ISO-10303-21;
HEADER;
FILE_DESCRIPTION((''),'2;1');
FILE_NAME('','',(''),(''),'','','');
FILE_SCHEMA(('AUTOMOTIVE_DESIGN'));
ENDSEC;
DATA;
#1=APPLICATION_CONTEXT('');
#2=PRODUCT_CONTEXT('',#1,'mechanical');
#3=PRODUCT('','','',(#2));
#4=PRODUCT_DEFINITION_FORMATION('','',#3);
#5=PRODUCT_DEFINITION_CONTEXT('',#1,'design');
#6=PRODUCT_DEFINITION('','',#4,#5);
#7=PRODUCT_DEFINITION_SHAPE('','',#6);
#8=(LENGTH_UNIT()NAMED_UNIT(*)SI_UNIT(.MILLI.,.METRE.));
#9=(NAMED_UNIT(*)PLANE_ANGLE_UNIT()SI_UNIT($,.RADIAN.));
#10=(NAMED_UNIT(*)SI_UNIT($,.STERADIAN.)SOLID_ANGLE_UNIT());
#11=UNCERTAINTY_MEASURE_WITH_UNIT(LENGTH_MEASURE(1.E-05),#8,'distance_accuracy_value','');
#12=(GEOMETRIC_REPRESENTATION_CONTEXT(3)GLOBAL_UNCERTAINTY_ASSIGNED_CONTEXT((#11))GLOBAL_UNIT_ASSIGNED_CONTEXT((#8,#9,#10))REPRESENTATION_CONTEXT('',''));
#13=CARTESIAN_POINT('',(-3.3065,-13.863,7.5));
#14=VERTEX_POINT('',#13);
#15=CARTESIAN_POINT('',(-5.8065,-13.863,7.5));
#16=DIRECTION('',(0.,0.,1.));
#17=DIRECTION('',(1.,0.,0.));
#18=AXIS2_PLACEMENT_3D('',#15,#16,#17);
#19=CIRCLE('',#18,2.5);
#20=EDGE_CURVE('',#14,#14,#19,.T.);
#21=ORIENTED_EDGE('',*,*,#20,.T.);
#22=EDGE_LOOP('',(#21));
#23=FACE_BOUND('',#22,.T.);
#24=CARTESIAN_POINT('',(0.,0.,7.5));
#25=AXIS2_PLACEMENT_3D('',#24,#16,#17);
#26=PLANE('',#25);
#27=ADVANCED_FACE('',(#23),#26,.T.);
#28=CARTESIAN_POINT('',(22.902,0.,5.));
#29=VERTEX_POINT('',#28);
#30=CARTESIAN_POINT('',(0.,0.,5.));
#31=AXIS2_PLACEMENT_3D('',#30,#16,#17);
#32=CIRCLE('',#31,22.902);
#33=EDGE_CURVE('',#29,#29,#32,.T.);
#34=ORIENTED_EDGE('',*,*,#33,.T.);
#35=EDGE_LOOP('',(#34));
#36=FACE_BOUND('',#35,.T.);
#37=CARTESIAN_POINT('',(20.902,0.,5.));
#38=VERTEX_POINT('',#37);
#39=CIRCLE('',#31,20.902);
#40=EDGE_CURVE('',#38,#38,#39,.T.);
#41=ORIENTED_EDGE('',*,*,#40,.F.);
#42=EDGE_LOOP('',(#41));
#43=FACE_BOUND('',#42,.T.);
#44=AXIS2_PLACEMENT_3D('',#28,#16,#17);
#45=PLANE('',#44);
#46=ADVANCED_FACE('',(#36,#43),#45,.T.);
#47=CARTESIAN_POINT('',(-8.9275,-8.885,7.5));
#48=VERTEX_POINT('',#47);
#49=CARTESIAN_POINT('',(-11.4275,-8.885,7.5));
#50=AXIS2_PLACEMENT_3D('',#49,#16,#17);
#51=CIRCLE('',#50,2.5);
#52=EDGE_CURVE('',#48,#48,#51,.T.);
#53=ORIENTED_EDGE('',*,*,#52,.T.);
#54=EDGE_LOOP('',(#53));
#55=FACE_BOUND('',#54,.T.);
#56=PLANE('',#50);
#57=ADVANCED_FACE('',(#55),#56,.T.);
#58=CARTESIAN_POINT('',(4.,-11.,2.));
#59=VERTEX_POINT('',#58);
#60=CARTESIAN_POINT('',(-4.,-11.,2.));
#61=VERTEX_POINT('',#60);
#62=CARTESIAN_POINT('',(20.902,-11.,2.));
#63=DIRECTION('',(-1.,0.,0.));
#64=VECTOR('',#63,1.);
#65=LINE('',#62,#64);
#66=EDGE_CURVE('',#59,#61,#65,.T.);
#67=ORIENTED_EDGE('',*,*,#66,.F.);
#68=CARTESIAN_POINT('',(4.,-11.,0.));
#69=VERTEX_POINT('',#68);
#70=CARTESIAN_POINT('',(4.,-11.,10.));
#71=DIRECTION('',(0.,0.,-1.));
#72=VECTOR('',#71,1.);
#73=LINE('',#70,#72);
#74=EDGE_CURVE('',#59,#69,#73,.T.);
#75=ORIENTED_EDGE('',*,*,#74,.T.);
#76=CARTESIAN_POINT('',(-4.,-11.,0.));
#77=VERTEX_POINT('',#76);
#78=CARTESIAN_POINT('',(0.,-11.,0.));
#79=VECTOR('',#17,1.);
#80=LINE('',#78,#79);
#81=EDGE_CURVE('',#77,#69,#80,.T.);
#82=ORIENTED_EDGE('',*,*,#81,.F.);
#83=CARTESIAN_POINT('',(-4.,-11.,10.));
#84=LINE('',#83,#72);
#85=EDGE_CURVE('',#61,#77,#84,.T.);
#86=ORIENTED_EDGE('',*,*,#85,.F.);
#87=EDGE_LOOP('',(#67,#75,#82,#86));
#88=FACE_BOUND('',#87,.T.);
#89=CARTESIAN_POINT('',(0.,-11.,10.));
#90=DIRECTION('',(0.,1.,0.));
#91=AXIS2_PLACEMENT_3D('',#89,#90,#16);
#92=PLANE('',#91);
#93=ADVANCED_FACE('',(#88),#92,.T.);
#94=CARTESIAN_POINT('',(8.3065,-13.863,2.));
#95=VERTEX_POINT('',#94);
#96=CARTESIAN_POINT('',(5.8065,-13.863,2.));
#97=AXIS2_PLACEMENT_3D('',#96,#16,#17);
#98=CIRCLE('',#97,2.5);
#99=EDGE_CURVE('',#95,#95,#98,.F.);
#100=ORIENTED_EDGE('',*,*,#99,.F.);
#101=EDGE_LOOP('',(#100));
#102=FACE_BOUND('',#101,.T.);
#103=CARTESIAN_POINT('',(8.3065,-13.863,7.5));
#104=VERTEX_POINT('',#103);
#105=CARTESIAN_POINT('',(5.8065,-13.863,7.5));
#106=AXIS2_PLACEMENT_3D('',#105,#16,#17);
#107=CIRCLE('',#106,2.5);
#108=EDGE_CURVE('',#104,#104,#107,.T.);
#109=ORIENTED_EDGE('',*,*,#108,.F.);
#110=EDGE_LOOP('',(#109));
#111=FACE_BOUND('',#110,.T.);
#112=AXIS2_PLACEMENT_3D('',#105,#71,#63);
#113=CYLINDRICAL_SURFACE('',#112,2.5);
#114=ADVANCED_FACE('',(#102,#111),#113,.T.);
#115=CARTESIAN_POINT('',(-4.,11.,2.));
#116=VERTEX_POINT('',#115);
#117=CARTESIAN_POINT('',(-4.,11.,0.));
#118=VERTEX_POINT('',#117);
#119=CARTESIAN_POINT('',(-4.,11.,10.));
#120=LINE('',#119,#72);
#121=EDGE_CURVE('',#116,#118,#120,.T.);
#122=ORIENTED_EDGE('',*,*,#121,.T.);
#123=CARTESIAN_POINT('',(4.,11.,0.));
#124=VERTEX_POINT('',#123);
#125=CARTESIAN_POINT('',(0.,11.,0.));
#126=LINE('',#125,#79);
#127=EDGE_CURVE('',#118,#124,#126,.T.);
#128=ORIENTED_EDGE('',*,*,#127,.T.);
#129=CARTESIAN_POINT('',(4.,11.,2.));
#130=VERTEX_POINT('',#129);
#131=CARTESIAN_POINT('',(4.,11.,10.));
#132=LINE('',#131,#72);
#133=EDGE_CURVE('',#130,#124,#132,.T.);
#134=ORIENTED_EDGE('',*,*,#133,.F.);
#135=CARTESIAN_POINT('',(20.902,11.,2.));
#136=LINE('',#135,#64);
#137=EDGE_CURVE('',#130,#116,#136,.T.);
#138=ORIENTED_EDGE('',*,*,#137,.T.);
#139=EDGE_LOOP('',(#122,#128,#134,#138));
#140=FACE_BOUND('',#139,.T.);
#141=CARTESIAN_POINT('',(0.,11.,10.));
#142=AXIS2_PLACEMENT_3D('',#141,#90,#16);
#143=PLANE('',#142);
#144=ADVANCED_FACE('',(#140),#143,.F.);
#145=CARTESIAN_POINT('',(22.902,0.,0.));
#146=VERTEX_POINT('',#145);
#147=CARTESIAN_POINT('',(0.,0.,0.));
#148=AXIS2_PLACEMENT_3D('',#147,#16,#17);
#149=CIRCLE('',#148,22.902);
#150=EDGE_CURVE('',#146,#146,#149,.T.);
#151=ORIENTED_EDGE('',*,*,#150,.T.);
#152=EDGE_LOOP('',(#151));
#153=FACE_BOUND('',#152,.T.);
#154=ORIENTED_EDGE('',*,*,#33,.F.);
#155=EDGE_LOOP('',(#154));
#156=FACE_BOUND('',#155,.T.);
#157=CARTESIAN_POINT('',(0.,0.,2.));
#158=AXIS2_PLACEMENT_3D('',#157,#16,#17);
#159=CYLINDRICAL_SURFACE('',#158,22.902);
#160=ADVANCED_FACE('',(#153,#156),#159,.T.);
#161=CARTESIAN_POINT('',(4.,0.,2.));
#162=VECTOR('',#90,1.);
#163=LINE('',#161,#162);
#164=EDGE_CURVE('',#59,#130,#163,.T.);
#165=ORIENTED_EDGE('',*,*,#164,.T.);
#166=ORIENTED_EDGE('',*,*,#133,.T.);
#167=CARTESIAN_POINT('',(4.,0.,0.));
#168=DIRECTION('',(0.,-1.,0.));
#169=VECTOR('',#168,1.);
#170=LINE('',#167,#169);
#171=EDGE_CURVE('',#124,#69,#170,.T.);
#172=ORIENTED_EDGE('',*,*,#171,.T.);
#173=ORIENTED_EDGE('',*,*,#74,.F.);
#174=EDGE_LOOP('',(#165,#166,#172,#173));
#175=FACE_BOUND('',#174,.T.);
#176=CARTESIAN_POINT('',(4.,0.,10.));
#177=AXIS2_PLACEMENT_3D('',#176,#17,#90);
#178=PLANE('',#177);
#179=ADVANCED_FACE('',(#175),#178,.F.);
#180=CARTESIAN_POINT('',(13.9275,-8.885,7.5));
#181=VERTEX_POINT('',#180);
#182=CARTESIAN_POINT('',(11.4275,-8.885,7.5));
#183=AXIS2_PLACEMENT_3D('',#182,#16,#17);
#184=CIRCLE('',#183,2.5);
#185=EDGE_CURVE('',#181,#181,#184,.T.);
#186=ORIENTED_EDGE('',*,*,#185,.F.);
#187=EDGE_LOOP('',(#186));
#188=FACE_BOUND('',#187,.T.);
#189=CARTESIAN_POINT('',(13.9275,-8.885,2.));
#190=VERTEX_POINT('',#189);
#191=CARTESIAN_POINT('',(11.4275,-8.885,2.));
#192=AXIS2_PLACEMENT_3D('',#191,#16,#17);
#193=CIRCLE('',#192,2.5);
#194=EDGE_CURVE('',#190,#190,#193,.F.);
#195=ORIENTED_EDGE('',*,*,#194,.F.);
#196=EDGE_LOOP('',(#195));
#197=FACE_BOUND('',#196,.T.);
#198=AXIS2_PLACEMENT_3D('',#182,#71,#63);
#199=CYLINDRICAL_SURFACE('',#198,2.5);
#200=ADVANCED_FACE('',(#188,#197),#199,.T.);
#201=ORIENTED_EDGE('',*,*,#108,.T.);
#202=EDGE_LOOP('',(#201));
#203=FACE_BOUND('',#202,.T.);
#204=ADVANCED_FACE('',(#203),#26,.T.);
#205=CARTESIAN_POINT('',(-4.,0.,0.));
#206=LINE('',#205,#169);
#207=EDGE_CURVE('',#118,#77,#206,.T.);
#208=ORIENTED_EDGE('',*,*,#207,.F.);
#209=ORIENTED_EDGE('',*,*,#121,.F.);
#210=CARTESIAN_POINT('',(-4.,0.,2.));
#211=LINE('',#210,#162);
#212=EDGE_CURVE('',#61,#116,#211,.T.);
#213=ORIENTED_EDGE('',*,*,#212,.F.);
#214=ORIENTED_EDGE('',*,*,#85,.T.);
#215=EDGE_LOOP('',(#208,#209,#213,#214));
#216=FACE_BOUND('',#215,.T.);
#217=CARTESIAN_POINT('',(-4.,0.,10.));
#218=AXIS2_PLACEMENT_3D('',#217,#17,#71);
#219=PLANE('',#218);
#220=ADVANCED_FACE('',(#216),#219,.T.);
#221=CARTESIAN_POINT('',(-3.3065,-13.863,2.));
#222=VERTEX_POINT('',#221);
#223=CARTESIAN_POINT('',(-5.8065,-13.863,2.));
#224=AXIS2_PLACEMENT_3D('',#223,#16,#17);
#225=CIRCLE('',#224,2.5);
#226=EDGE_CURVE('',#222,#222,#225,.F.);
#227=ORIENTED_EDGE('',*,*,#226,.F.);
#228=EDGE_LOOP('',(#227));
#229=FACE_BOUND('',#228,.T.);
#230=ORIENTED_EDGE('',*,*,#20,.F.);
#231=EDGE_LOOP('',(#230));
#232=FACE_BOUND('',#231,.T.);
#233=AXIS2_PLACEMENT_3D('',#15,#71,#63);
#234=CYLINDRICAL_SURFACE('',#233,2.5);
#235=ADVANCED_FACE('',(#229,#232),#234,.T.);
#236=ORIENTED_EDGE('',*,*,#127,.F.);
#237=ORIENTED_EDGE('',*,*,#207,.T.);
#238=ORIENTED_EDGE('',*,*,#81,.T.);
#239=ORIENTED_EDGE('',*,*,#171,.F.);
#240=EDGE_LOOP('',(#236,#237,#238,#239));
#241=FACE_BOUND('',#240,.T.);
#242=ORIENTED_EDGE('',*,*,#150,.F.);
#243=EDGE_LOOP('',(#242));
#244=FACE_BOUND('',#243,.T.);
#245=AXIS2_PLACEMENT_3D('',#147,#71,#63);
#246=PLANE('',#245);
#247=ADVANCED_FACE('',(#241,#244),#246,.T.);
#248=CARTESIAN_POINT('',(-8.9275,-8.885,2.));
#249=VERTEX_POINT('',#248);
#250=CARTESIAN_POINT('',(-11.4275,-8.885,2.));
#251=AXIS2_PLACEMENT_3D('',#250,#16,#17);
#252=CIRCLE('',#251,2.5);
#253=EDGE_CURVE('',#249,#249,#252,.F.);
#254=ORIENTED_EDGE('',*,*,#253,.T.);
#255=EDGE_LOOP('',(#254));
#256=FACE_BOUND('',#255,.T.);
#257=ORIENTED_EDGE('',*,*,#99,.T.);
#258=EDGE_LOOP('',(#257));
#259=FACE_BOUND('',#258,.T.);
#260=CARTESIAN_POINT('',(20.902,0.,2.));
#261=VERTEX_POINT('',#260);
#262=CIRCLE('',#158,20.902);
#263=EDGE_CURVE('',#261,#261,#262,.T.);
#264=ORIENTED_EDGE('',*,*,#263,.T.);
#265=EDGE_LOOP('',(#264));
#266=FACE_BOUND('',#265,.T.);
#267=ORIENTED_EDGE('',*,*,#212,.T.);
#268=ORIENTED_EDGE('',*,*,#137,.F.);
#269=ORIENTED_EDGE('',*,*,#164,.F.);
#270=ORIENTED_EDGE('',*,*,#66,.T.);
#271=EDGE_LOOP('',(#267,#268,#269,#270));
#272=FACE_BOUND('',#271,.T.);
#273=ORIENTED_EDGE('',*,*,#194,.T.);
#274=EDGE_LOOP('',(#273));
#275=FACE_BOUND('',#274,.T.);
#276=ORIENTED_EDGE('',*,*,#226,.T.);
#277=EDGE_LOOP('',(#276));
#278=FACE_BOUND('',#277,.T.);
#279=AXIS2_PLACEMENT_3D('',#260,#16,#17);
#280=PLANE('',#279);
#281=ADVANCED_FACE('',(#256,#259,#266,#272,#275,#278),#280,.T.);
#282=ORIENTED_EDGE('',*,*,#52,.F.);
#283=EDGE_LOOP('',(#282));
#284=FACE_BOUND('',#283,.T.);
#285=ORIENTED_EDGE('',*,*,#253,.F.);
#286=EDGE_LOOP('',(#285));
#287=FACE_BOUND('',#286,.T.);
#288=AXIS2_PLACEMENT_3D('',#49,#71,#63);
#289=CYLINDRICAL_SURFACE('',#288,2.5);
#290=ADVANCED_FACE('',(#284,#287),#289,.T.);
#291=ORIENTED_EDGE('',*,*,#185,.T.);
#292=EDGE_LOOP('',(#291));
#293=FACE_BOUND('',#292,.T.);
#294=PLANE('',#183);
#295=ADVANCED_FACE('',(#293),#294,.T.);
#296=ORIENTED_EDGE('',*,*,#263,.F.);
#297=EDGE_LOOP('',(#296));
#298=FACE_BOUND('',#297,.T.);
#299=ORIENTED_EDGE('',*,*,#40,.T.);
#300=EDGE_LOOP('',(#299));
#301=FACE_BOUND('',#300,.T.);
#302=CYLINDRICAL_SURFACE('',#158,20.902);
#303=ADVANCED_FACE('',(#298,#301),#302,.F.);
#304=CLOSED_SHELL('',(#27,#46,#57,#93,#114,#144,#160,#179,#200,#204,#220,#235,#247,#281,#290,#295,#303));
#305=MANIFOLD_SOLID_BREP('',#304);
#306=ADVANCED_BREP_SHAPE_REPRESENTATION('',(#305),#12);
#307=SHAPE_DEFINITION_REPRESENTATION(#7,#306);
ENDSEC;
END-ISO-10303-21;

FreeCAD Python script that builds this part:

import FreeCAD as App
import Part
import Sketcher

V = App.Vector

doc = App.newDocument("Part")
body = doc.addObject("PartDesign::Body", "Body")

sketch1 = body.newObject("Sketcher::SketchObject", "Sketch")
sketch1.AttachmentSupport = (doc.getObject("XZ_Plane"), [""])
sketch1.MapMode = "FlatFace"
sketch1.addGeometry([
    Part.LineSegment(V(22.902, 0, 0), V(0, 0, 0)),
    Part.LineSegment(V(0, 0, 0), V(0, 2, 0)),
    Part.LineSegment(V(0, 2, 0), V(20.902, 2, 0)),
    Part.LineSegment(V(20.902, 2, 0), V(20.902, 5, 0)),
    Part.LineSegment(V(20.902, 5, 0), V(22.902, 5, 0)),
    Part.LineSegment(V(22.902, 5, 0), V(22.902, 0, 0)),
], False)
sketch1.addConstraint([
    Sketcher.Constraint("Coincident", 0, 2, 1, 1),
    Sketcher.Constraint("Coincident", 1, 2, 2, 1),
    Sketcher.Constraint("Coincident", 2, 2, 3, 1),
    Sketcher.Constraint("Coincident", 3, 2, 4, 1),
    Sketcher.Constraint("Coincident", 4, 2, 5, 1),
    Sketcher.Constraint("Coincident", 5, 2, 0, 1),
    Sketcher.Constraint("Horizontal", 0),
    Sketcher.Constraint("Vertical", 1),
    Sketcher.Constraint("Horizontal", 2),
    Sketcher.Constraint("Vertical", 3),
    Sketcher.Constraint("Horizontal", 4),
    Sketcher.Constraint("Vertical", 5),
    Sketcher.Constraint("Coincident", 0, 2, -1, 1),
    Sketcher.Constraint("Equal", 4, 1),
    Sketcher.Constraint("DistanceX", 4, 1, 4, 2, 2.0),
    Sketcher.Constraint("DistanceY", 3, 1, 3, 2, 3.0),
    Sketcher.Constraint("DistanceX", 0, 2, 0, 1, 22.902),
])
revolution = body.newObject("PartDesign::Revolution", "Revolution")
revolution.Profile = sketch1
revolution.ReferenceAxis = (sketch1, ["V_Axis"])
revolution.Angle = 360

sketch2 = body.newObject("Sketcher::SketchObject", "Sketch001")
sketch2.AttachmentSupport = (doc.getObject("XY_Plane"), [""])
sketch2.MapMode = "FlatFace"
sketch2.addGeometry([
    Part.LineSegment(V(4, 11, 0), V(4, -11, 0)),
    Part.LineSegment(V(4, -11, 0), V(-4, -11, 0)),
    Part.LineSegment(V(-4, -11, 0), V(-4, 11, 0)),
    Part.LineSegment(V(-4, 11, 0), V(4, 11, 0)),
], False)
sketch2.addConstraint([
    Sketcher.Constraint("Coincident", 0, 2, 1, 1),
    Sketcher.Constraint("Coincident", 1, 2, 2, 1),
    Sketcher.Constraint("Coincident", 2, 2, 3, 1),
    Sketcher.Constraint("Coincident", 3, 2, 0, 1),
    Sketcher.Constraint("Vertical", 0),
    Sketcher.Constraint("Horizontal", 1),
    Sketcher.Constraint("Vertical", 2),
    Sketcher.Constraint("Horizontal", 3),
    Sketcher.Constraint("Symmetric", 0, 2, 2, 2, -1, 1),
    Sketcher.Constraint("DistanceX", 1, 2, 1, 1, 8.0),
    Sketcher.Constraint("DistanceY", 0, 2, 0, 1, 22.0),
])
pocket1 = body.newObject("PartDesign::Pocket", "Pocket")
pocket1.Profile = sketch2
pocket1.Length = 10
pocket1.Reversed = True

sketch3 = body.newObject("Sketcher::SketchObject", "Sketch002")
sketch3.AttachmentSupport = (doc.getObject("XY_Plane"), [""])
sketch3.MapMode = "FlatFace"
sketch3.addGeometry(Part.Circle(V(11.4275, -8.885, 0), V(0, 0, 1), 2.5), False)
sketch3.addConstraint([
    Sketcher.Constraint("Diameter", 0, 5.0),
    Sketcher.Constraint("DistanceY", 0, 3, -1, 1, 8.885),
    Sketcher.Constraint("DistanceX", -1, 1, 0, 3, 11.4275),
])
pad1 = body.newObject("PartDesign::Pad", "Pad")
pad1.Profile = sketch3
pad1.Length = 7.5

sketch4 = body.newObject("Sketcher::SketchObject", "Sketch003")
sketch4.AttachmentSupport = (doc.getObject("XY_Plane"), [""])
sketch4.MapMode = "FlatFace"
sketch4.addGeometry(Part.Circle(V(5.8065, -13.863, 0), V(0, 0, 1), 2.5), False)
sketch4.addConstraint([
    Sketcher.Constraint("Diameter", 0, 5.0),
    Sketcher.Constraint("DistanceY", 0, 3, -1, 1, 13.863),
    Sketcher.Constraint("DistanceX", -1, 1, 0, 3, 5.8065),
])
pad2 = body.newObject("PartDesign::Pad", "Pad001")
pad2.Profile = sketch4
pad2.Length = 7.5

sketch5 = body.newObject("Sketcher::SketchObject", "Sketch004")
sketch5.AttachmentSupport = (doc.getObject("XY_Plane"), [""])
sketch5.MapMode = "FlatFace"
sketch5.addGeometry(Part.Circle(V(-5.8065, -13.863, 0), V(0, 0, 1), 2.5), False)
sketch5.addConstraint([
    Sketcher.Constraint("Diameter", 0, 5.0),
    Sketcher.Constraint("DistanceY", 0, 3, -1, 1, 13.863),
    Sketcher.Constraint("DistanceX", 0, 3, -1, 1, 5.8065),
])
pad3 = body.newObject("PartDesign::Pad", "Pad002")
pad3.Profile = sketch5
pad3.Length = 7.5

sketch6 = body.newObject("Sketcher::SketchObject", "Sketch005")
sketch6.AttachmentSupport = (doc.getObject("XY_Plane"), [""])
sketch6.MapMode = "FlatFace"
sketch6.addGeometry(Part.Circle(V(-11.4275, -8.885, 0), V(0, 0, 1), 2.5), False)
sketch6.addConstraint([
    Sketcher.Constraint("Diameter", 0, 5.0),
    Sketcher.Constraint("DistanceY", 0, 3, -1, 1, 8.885),
    Sketcher.Constraint("DistanceX", 0, 3, -1, 1, 11.4275),
])
pad4 = body.newObject("PartDesign::Pad", "Pad003")
pad4.Profile = sketch6
pad4.Length = 7.5

doc.recompute()
